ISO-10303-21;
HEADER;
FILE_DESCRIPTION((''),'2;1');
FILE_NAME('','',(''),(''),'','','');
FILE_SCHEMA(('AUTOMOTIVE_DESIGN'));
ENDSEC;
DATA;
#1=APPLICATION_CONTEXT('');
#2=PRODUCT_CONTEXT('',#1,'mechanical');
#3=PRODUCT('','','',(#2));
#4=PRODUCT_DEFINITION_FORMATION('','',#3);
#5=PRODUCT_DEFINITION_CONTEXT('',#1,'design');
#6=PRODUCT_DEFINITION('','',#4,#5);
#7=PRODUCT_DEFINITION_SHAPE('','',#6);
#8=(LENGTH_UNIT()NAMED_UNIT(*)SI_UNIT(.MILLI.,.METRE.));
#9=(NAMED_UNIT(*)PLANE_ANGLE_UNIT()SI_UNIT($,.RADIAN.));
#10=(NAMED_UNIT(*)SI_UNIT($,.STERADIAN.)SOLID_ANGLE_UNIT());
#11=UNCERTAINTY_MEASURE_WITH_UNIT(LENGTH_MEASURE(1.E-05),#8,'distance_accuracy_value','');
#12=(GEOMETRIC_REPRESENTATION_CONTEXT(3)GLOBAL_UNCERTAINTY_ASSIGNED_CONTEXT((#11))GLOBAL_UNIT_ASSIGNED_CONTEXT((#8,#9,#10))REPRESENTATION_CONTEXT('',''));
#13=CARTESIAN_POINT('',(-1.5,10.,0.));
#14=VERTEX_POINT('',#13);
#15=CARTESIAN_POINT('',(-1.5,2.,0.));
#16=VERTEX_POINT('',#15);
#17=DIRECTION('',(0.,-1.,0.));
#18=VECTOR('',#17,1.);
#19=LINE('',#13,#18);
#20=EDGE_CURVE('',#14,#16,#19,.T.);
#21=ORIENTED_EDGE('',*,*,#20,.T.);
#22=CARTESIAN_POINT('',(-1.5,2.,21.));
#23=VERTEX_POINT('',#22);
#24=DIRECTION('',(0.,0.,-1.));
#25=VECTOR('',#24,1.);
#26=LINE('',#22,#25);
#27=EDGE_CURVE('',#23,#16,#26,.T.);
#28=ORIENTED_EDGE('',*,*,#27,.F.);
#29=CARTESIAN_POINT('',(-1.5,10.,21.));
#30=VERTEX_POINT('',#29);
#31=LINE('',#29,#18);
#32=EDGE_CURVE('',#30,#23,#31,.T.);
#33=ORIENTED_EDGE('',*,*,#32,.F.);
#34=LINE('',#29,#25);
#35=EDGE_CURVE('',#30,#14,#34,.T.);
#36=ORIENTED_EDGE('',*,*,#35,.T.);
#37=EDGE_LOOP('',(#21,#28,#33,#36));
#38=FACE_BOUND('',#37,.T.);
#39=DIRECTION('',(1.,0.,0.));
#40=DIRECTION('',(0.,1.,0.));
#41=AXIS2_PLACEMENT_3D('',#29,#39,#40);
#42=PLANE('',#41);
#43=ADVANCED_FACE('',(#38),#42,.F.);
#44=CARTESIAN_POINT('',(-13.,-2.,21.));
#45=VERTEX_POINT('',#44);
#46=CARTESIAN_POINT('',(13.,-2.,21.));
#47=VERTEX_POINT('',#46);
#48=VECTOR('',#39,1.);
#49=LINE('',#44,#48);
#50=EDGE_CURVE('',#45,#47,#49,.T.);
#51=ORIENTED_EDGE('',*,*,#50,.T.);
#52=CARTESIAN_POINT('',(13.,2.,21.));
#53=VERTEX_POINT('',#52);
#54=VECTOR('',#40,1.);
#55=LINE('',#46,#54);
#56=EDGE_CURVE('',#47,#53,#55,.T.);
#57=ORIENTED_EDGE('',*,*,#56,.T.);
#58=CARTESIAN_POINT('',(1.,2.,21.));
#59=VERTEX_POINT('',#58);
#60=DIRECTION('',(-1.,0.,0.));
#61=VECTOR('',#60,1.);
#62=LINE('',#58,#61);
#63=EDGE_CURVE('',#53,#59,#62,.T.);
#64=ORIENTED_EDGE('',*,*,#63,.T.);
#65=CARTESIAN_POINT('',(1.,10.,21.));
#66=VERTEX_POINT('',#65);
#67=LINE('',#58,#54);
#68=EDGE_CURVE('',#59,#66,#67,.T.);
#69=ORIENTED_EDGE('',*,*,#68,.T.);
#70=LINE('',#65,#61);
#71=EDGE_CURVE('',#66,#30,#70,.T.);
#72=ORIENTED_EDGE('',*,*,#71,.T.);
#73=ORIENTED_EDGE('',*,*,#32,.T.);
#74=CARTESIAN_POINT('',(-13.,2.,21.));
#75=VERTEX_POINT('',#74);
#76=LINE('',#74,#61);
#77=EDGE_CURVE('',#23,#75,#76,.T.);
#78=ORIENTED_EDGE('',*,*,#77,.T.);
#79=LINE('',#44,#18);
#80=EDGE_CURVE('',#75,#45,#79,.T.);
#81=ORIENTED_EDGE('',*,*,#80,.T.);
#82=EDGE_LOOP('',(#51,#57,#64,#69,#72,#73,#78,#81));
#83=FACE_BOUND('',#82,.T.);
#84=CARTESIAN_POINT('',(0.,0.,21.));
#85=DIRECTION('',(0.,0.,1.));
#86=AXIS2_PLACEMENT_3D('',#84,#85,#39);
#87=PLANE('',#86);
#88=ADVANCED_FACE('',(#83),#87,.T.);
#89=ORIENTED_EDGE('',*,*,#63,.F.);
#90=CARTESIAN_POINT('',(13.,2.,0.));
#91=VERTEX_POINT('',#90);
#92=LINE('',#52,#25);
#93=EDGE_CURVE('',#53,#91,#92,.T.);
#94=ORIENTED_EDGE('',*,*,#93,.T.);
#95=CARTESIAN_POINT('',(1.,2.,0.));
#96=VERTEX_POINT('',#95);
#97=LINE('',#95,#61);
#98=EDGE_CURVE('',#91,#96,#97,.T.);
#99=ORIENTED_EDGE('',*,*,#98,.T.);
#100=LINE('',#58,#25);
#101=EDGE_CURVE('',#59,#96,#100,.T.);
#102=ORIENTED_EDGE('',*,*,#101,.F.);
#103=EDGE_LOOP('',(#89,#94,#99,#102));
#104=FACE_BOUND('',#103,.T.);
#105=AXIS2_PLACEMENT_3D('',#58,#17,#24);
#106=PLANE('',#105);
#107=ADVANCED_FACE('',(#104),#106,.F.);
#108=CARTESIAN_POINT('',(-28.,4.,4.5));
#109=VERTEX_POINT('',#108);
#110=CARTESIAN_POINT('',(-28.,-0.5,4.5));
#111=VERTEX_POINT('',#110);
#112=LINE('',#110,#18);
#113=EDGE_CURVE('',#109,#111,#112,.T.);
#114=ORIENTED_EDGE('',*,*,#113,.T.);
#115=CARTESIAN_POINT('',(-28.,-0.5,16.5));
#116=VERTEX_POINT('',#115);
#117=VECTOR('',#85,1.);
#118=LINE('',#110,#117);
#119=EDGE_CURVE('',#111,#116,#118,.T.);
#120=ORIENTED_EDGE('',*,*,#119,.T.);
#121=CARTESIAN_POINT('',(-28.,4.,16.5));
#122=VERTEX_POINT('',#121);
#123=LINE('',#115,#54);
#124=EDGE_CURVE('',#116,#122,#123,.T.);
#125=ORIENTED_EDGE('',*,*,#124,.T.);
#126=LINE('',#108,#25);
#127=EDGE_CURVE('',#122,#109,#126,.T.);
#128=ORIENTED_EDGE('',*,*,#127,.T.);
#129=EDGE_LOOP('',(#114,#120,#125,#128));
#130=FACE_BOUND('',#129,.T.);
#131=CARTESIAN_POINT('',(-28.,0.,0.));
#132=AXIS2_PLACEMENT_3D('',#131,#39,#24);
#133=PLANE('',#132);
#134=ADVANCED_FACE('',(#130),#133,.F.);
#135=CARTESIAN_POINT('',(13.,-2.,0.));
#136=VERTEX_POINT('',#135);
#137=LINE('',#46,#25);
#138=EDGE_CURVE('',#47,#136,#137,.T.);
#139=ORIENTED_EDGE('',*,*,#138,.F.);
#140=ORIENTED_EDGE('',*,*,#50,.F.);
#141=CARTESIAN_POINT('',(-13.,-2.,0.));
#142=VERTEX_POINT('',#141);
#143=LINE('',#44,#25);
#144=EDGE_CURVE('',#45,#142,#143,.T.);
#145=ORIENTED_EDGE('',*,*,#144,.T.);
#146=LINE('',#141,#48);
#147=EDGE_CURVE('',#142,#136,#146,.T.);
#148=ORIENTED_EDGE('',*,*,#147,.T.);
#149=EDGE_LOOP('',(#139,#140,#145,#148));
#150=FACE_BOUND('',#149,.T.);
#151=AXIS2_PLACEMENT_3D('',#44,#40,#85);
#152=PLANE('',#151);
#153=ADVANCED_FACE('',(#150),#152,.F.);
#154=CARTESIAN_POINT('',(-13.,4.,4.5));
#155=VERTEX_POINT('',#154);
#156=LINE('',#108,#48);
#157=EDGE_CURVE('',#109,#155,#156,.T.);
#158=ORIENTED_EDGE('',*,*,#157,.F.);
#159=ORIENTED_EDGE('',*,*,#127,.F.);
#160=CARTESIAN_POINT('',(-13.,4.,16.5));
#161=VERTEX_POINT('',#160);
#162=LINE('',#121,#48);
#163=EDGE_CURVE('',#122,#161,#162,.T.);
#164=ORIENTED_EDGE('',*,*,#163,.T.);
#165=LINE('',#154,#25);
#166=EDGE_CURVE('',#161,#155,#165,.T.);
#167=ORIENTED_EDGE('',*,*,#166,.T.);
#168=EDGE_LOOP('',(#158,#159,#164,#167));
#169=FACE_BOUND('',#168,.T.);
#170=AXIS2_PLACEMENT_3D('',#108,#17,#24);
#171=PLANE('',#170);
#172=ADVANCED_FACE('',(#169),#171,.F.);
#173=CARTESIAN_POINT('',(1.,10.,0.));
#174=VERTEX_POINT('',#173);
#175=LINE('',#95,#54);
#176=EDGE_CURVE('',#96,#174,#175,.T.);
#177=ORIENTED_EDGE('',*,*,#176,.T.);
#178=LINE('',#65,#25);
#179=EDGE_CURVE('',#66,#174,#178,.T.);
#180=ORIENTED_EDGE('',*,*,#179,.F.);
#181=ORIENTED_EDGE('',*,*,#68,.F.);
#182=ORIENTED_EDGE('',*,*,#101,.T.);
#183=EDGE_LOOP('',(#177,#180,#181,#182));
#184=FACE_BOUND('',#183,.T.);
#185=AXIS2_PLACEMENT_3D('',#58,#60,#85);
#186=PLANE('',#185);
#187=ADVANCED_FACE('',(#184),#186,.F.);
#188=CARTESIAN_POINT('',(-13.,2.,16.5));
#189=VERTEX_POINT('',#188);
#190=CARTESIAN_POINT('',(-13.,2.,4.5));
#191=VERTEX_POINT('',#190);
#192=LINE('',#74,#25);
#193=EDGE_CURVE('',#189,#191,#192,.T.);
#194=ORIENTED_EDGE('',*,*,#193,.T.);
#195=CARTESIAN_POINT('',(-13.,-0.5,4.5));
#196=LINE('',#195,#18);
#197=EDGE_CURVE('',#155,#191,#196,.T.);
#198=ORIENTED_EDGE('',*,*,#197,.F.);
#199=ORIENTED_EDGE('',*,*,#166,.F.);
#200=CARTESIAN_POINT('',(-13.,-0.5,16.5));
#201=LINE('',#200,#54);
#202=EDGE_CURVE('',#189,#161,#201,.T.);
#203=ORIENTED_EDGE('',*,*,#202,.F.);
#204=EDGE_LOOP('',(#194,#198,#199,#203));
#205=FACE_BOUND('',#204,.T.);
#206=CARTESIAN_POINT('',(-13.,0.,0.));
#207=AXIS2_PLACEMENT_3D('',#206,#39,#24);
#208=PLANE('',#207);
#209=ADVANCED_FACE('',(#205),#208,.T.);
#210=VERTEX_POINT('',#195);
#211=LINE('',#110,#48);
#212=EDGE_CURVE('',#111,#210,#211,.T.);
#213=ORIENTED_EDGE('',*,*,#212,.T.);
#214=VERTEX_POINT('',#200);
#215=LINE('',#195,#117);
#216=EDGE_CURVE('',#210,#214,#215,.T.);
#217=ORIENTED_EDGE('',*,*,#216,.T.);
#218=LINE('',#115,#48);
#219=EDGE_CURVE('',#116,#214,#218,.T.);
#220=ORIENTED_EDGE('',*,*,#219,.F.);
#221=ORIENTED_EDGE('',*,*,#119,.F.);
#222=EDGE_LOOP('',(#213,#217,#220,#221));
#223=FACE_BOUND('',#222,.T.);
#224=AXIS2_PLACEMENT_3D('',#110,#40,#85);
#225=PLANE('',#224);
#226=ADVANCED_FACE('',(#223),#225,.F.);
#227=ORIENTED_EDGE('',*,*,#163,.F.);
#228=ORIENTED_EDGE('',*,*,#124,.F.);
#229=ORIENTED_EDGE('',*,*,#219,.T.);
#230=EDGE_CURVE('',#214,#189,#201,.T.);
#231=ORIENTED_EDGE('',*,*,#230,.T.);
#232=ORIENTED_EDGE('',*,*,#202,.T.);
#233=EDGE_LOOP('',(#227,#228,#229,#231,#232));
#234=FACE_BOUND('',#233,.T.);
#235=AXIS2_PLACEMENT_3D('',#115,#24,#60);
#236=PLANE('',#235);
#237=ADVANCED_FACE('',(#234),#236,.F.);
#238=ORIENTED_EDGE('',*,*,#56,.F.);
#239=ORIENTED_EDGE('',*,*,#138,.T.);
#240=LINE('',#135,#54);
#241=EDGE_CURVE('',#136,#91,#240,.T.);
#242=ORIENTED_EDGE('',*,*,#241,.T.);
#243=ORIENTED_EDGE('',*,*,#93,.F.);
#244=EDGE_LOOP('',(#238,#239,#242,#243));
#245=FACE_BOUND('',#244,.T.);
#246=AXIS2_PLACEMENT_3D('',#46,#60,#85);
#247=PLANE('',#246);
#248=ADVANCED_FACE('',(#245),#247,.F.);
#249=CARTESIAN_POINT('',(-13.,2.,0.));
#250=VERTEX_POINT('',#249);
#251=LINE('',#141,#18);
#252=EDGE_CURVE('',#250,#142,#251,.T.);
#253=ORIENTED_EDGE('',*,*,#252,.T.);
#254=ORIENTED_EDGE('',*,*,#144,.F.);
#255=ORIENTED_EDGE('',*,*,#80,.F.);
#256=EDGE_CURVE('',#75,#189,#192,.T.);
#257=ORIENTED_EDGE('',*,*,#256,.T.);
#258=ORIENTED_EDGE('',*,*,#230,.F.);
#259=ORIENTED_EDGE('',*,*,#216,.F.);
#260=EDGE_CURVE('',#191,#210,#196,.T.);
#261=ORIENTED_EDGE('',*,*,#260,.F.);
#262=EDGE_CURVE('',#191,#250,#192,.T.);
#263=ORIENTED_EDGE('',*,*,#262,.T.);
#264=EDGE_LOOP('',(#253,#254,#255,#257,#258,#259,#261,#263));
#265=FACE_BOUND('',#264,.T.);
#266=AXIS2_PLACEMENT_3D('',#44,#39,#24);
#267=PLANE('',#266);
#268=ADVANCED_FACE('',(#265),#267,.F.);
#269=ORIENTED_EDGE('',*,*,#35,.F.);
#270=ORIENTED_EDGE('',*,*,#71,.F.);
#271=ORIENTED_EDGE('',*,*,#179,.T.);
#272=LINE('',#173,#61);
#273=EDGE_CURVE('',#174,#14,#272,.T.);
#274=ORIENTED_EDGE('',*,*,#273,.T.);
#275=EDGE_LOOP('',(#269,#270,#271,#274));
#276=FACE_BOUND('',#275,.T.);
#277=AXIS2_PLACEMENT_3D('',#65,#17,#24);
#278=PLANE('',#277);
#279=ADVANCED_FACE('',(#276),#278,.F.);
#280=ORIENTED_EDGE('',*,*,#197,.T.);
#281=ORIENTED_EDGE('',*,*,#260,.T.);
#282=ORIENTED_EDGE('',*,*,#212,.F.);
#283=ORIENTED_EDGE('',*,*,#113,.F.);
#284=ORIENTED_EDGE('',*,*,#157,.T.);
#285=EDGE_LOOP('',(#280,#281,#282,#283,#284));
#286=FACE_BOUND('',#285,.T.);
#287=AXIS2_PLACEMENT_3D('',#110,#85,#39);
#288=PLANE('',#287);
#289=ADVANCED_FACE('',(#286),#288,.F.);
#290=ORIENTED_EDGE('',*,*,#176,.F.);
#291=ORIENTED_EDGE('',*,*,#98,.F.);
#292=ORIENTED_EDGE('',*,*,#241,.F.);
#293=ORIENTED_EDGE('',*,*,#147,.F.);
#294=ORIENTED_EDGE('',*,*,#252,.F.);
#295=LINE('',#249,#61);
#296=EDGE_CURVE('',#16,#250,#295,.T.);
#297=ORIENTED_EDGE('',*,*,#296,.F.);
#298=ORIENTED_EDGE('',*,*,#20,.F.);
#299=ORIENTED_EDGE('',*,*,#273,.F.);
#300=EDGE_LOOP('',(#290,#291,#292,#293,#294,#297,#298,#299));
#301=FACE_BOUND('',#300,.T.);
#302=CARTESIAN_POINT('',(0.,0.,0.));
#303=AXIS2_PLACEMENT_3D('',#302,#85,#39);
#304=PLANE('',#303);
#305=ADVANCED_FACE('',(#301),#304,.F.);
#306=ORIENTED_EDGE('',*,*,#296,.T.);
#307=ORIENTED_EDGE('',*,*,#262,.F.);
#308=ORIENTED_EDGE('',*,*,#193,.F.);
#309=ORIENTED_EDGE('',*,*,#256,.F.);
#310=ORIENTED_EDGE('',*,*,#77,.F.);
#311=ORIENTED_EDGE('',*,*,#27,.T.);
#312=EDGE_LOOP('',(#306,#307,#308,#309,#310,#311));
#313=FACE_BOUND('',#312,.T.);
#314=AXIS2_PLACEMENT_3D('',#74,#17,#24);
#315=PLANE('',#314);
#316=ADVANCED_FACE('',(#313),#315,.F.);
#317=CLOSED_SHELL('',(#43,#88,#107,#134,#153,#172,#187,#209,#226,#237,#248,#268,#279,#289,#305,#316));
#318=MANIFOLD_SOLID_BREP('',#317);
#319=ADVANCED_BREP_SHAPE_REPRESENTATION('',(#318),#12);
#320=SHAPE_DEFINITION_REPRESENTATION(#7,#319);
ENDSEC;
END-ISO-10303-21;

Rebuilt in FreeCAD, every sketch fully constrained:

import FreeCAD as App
import Part
import Sketcher


def add_polygon(sketch, points):
    """Adds a closed chain of lines whose ends are joined by coincident constraints."""
    first, n = sketch.GeometryCount, len(points)
    for a, b in zip(points, points[1:] + points[:1]):
        sketch.addGeometry(Part.LineSegment(App.Vector(*a, 0), App.Vector(*b, 0)), False)
    for i in range(n):
        sketch.addConstraint(Sketcher.Constraint("Coincident", first + i, 2, first + (i + 1) % n, 1))

doc = App.newDocument("Part")
body = doc.addObject("PartDesign::Body", "Body")

# Sketch on XY plane
sketch1 = body.newObject("Sketcher::SketchObject", "Sketch")
sketch1.AttachmentSupport = (doc.getObject("XY_Plane"), [""])
sketch1.MapMode = "FlatFace"
add_polygon(sketch1, [(1, 2), (1, 10), (-1.5, 10), (-1.5, 2), (-13, 2), (-13, -2), (13, -2), (13, 2)])  # lines 0-7
sketch1.addConstraint([
    Sketcher.Constraint("Vertical", 0),
    Sketcher.Constraint("Horizontal", 1),
    Sketcher.Constraint("Vertical", 2),
    Sketcher.Constraint("Horizontal", 3),
    Sketcher.Constraint("Vertical", 4),
    Sketcher.Constraint("Horizontal", 5),
    Sketcher.Constraint("Vertical", 6),
    Sketcher.Constraint("Horizontal", 7),
    Sketcher.Constraint("Symmetric", 3, 2, 5, 2, -1, 1),
    Sketcher.Constraint("Horizontal", 3, 2, 6, 2),
    Sketcher.Constraint("DistanceX", 5, 1, 5, 2, 26.0),
    Sketcher.Constraint("DistanceX", 7, 2, 7, 1, 12.0),
    Sketcher.Constraint("DistanceY", 0, 1, 0, 2, 8.0),
    Sketcher.Constraint("DistanceY", 4, 2, 4, 1, 4.0),
    Sketcher.Constraint("DistanceX", 1, 2, 1, 1, 2.5),
])
pad1 = body.newObject("PartDesign::Pad", "Pad")
pad1.Profile = sketch1
pad1.Length = 21

# Sketch on YZ plane
sketch2 = body.newObject("Sketcher::SketchObject", "Sketch001")
sketch2.AttachmentSupport = (doc.getObject("YZ_Plane"), [""])
sketch2.MapMode = "FlatFace"
sketch2.AttachmentOffset = App.Placement(App.Vector(0, 0, -13), App.Rotation())
add_polygon(sketch2, [(4, 4.5), (-0.5, 4.5), (-0.5, 16.5), (4, 16.5)])  # lines 0-3
sketch2.addConstraint([
    Sketcher.Constraint("Horizontal", 0),
    Sketcher.Constraint("Vertical", 1),
    Sketcher.Constraint("Horizontal", 2),
    Sketcher.Constraint("Vertical", 3),
    Sketcher.Constraint("DistanceY", 1, 1, 1, 2, 12.0),
    Sketcher.Constraint("DistanceX", 0, 2, 0, 1, 4.5),
    Sketcher.Constraint("DistanceX", -1, 1, 2, 2, 4.0),
    Sketcher.Constraint("DistanceY", -1, 1, 0, 2, 4.5),
])
pad2 = body.newObject("PartDesign::Pad", "Pad001")
pad2.Profile = sketch2
pad2.Length = 15
pad2.Reversed = True

doc.recompute()
